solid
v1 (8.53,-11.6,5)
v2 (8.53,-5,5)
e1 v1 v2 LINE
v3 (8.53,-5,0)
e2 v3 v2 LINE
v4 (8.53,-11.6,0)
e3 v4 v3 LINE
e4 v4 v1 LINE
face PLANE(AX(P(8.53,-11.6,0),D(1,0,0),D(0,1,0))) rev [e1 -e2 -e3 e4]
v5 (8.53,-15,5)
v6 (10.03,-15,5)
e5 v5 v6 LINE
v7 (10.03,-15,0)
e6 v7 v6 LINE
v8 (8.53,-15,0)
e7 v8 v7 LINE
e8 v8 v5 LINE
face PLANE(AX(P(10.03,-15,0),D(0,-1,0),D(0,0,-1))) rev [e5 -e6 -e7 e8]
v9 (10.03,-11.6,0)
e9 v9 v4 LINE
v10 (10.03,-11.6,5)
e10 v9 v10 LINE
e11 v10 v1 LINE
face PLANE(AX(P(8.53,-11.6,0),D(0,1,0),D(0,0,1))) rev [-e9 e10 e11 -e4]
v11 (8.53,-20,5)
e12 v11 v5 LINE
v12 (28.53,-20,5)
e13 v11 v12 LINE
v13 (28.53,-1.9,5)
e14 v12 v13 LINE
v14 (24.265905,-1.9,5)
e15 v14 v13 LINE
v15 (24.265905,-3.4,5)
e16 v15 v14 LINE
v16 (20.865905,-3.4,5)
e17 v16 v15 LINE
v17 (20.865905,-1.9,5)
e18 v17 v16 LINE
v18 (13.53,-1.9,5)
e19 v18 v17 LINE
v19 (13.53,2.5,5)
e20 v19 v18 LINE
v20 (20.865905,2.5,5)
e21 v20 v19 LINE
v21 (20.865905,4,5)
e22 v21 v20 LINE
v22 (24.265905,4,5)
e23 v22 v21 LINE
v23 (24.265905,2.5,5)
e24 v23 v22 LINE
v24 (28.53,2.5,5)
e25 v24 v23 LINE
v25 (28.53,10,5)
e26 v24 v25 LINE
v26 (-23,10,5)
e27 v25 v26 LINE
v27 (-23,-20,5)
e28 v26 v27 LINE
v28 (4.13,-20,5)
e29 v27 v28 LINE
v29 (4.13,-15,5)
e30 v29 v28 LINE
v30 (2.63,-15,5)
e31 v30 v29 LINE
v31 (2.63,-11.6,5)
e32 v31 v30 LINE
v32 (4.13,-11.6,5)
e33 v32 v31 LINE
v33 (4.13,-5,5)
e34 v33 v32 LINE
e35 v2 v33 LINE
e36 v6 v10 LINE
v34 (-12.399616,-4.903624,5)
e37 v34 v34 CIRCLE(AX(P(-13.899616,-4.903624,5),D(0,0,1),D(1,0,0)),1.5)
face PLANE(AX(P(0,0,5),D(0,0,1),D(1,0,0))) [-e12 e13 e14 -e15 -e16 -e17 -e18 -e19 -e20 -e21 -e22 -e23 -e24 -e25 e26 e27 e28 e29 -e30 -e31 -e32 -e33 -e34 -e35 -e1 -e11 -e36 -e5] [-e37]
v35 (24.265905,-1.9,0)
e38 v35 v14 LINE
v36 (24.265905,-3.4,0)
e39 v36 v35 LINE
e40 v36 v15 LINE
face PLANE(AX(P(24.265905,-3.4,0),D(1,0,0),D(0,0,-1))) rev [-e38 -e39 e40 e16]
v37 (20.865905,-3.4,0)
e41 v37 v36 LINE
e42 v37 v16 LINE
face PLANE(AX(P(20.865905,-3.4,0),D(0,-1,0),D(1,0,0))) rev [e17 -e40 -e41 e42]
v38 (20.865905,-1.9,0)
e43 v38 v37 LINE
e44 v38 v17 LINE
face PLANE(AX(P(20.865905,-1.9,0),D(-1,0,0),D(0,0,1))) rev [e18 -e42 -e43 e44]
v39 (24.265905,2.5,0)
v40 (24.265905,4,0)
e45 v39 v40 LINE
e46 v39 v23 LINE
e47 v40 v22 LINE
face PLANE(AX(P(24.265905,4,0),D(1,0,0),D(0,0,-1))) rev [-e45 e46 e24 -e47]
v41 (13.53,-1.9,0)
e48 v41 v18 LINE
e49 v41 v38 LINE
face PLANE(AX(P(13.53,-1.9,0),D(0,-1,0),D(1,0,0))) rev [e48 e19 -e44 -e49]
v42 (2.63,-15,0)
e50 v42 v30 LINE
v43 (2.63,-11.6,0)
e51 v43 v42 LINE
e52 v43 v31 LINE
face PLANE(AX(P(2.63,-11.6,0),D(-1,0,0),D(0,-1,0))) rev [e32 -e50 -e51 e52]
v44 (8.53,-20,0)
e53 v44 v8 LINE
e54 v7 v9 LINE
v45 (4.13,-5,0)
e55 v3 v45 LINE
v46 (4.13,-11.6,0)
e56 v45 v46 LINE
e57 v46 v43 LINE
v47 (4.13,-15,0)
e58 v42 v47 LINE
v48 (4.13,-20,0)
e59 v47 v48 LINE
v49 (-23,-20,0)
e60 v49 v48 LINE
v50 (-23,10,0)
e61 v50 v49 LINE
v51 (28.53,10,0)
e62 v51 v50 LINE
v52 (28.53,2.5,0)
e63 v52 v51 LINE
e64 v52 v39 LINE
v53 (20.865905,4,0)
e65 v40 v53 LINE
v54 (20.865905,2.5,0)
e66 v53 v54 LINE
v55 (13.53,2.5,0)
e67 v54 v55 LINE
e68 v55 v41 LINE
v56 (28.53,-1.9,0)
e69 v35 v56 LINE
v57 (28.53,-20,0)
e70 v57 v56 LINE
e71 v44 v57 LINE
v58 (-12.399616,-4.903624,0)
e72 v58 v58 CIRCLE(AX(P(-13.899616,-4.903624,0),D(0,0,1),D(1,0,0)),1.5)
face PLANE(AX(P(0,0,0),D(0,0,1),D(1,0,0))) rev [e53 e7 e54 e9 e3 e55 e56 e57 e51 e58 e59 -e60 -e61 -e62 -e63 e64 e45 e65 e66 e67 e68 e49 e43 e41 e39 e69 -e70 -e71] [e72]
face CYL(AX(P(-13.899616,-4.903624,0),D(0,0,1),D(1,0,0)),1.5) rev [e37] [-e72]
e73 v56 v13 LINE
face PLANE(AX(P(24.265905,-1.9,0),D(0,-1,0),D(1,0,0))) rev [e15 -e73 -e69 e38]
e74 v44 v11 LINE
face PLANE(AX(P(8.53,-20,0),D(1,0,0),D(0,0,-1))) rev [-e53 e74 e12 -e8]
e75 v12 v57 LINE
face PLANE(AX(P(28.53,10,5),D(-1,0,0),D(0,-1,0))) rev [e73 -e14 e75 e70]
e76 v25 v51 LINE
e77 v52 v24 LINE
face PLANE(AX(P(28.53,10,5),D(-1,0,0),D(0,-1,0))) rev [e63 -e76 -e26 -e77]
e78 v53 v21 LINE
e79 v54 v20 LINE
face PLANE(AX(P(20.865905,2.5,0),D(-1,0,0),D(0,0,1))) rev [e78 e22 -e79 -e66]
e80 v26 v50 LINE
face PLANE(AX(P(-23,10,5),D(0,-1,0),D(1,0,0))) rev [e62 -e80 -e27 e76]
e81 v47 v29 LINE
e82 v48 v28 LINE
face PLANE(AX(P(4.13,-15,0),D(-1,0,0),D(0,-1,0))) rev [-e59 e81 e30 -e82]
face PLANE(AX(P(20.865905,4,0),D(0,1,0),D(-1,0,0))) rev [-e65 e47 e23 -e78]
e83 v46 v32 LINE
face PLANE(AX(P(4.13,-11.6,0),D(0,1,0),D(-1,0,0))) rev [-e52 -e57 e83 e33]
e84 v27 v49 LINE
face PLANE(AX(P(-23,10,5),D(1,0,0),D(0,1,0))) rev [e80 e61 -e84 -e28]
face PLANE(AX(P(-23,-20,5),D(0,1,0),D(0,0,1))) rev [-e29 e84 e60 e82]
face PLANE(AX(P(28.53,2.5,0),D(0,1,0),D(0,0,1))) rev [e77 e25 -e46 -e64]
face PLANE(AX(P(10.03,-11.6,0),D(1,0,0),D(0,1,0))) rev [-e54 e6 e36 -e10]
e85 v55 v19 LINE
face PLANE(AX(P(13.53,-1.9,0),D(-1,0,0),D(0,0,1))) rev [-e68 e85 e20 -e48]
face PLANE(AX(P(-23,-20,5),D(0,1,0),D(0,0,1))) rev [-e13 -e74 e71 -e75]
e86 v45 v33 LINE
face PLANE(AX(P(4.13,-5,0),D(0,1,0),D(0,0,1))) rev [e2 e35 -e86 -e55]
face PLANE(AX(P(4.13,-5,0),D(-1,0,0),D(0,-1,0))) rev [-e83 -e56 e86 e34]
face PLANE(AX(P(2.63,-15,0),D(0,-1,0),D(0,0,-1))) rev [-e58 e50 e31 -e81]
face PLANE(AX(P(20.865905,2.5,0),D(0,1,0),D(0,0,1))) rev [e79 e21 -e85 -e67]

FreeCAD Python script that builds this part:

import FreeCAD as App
import Part
import Sketcher
from FreeCAD import Vector
Q = App.Units.Quantity

doc = App.newDocument("Part")
body = doc.addObject("PartDesign::Body", "Body")

# Sketch on XY plane
sketch1 = body.newObject("Sketcher::SketchObject", "Sketch")
sketch1.AttachmentSupport = (doc.getObject("XY_Plane"), [""])
sketch1.MapMode = "FlatFace"
sketch1.addGeometry([
    Part.LineSegment(Vector(-23, 10, 0), Vector(-23, -20, 0)),
    Part.LineSegment(Vector(-23, -20, 0), Vector(28.53, -20, 0)),
    Part.LineSegment(Vector(28.53, -20, 0), Vector(28.53, 10, 0)),
    Part.LineSegment(Vector(28.53, 10, 0), Vector(-23, 10, 0)),
], False)
sketch1.addConstraint([
    Sketcher.Constraint("Coincident", 0, 2, 1, 1),
    Sketcher.Constraint("Coincident", 1, 2, 2, 1),
    Sketcher.Constraint("Coincident", 2, 2, 3, 1),
    Sketcher.Constraint("Coincident", 3, 2, 0, 1),
    Sketcher.Constraint("Vertical", 0),
    Sketcher.Constraint("Horizontal", 1),
    Sketcher.Constraint("Vertical", 2),
    Sketcher.Constraint("Horizontal", 3),
    Sketcher.Constraint("DistanceY", 0, 2, 0, 1, Q("30 mm")),
    Sketcher.Constraint("DistanceX", 0, 2, -1, 1, Q("23 mm")),
    Sketcher.Constraint("DistanceY", 0, 2, -1, 1, Q("20 mm")),
    Sketcher.Constraint("DistanceX", 1, 1, 1, 2, Q("51.53 mm")),
])
pad1 = body.newObject("PartDesign::Pad", "Pad")
pad1.Profile = sketch1
pad1.Length = 5

# Sketch on XY plane
sketch2 = body.newObject("Sketcher::SketchObject", "Sketch001")
sketch2.AttachmentSupport = (doc.getObject("XY_Plane"), [""])
sketch2.MapMode = "FlatFace"
sketch2.AttachmentOffset = App.Placement(Vector(0, 0, 5), App.Rotation())
sketch2.addGeometry([
    Part.LineSegment(Vector(13.53, -1.9, 0), Vector(20.865905, -1.9, 0)),  # 0
    Part.LineSegment(Vector(20.865905, -1.9, 0), Vector(20.865905, -3.4, 0)),  # 1
    Part.LineSegment(Vector(20.865905, -3.4, 0), Vector(24.265905, -3.4, 0)),  # 2
    Part.LineSegment(Vector(24.265905, -3.4, 0), Vector(24.265905, -1.9, 0)),  # 3
    Part.LineSegment(Vector(24.265905, -1.9, 0), Vector(28.53, -1.9, 0)),  # 4
    Part.LineSegment(Vector(28.53, -1.9, 0), Vector(28.53, 2.5, 0)),  # 5
    Part.LineSegment(Vector(28.53, 2.5, 0), Vector(24.265905, 2.5, 0)),  # 6
    Part.LineSegment(Vector(24.265905, 2.5, 0), Vector(24.265905, 4, 0)),  # 7
    Part.LineSegment(Vector(24.265905, 4, 0), Vector(20.865905, 4, 0)),  # 8
    Part.LineSegment(Vector(20.865905, 4, 0), Vector(20.865905, 2.5, 0)),  # 9
    Part.LineSegment(Vector(20.865905, 2.5, 0), Vector(13.53, 2.5, 0)),  # 10
    Part.LineSegment(Vector(13.53, 2.5, 0), Vector(13.53, -1.9, 0)),  # 11
    Part.LineSegment(Vector(4.13, -5, 0), Vector(4.13, -11.6, 0)),  # 12
    Part.LineSegment(Vector(4.13, -11.6, 0), Vector(2.63, -11.6, 0)),  # 13
    Part.LineSegment(Vector(2.63, -11.6, 0), Vector(2.63, -15, 0)),  # 14
    Part.LineSegment(Vector(2.63, -15, 0), Vector(4.13, -15, 0)),  # 15
    Part.LineSegment(Vector(4.13, -15, 0), Vector(4.13, -20, 0)),  # 16
    Part.LineSegment(Vector(4.13, -20, 0), Vector(8.53, -20, 0)),  # 17
    Part.LineSegment(Vector(8.53, -20, 0), Vector(8.53, -15, 0)),  # 18
    Part.LineSegment(Vector(8.53, -15, 0), Vector(10.03, -15, 0)),  # 19
    Part.LineSegment(Vector(10.03, -15, 0), Vector(10.03, -11.6, 0)),  # 20
    Part.LineSegment(Vector(10.03, -11.6, 0), Vector(8.53, -11.6, 0)),  # 21
    Part.LineSegment(Vector(8.53, -11.6, 0), Vector(8.53, -5, 0)),  # 22
    Part.LineSegment(Vector(8.53, -5, 0), Vector(4.13, -5, 0)),  # 23
], False)
sketch2.addConstraint([
    Sketcher.Constraint("Coincident", 0, 2, 1, 1),
    Sketcher.Constraint("Coincident", 1, 2, 2, 1),
    Sketcher.Constraint("Coincident", 2, 2, 3, 1),
    Sketcher.Constraint("Coincident", 3, 2, 4, 1),
    Sketcher.Constraint("Coincident", 4, 2, 5, 1),
    Sketcher.Constraint("Coincident", 5, 2, 6, 1),
    Sketcher.Constraint("Coincident", 6, 2, 7, 1),
    Sketcher.Constraint("Coincident", 7, 2, 8, 1),
    Sketcher.Constraint("Coincident", 8, 2, 9, 1),
    Sketcher.Constraint("Coincident", 9, 2, 10, 1),
    Sketcher.Constraint("Coincident", 10, 2, 11, 1),
    Sketcher.Constraint("Coincident", 11, 2, 0, 1),
    Sketcher.Constraint("Coincident", 12, 2, 13, 1),
    Sketcher.Constraint("Coincident", 13, 2, 14, 1),
    Sketcher.Constraint("Coincident", 14, 2, 15, 1),
    Sketcher.Constraint("Coincident", 15, 2, 16, 1),
    Sketcher.Constraint("Coincident", 16, 2, 17, 1),
    Sketcher.Constraint("Coincident", 17, 2, 18, 1),
    Sketcher.Constraint("Coincident", 18, 2, 19, 1),
    Sketcher.Constraint("Coincident", 19, 2, 20, 1),
    Sketcher.Constraint("Coincident", 20, 2, 21, 1),
    Sketcher.Constraint("Coincident", 21, 2, 22, 1),
    Sketcher.Constraint("Coincident", 22, 2, 23, 1),
    Sketcher.Constraint("Coincident", 23, 2, 12, 1),
    Sketcher.Constraint("Horizontal", 0),
    Sketcher.Constraint("Vertical", 1),
    Sketcher.Constraint("Horizontal", 2),
    Sketcher.Constraint("Vertical", 3),
    Sketcher.Constraint("Horizontal", 4),
    Sketcher.Constraint("Vertical", 5),
    Sketcher.Constraint("Horizontal", 6),
    Sketcher.Constraint("Vertical", 7),
    Sketcher.Constraint("Horizontal", 8),
    Sketcher.Constraint("Vertical", 9),
    Sketcher.Constraint("Horizontal", 10),
    Sketcher.Constraint("Vertical", 11),
    Sketcher.Constraint("Vertical", 12),
    Sketcher.Constraint("Horizontal", 13),
    Sketcher.Constraint("Vertical", 14),
    Sketcher.Constraint("Horizontal", 15),
    Sketcher.Constraint("Vertical", 16),
    Sketcher.Constraint("Horizontal", 17),
    Sketcher.Constraint("Vertical", 18),
    Sketcher.Constraint("Horizontal", 19),
    Sketcher.Constraint("Vertical", 20),
    Sketcher.Constraint("Horizontal", 21),
    Sketcher.Constraint("Vertical", 22),
    Sketcher.Constraint("Horizontal", 23),
    Sketcher.Constraint("Horizontal", 0, 2, 3, 2),
    Sketcher.Constraint("Horizontal", 6, 2, 9, 2),
    Sketcher.Constraint("Horizontal", 15, 2, 18, 2),
    Sketcher.Constraint("Horizontal", 13, 2, 20, 2),
    Sketcher.Constraint("Vertical", 3, 2, 6, 2),
    Sketcher.Constraint("Vertical", 1, 2, 8, 2),
    Sketcher.Constraint("Vertical", 12, 2, 15, 2),
    Sketcher.Constraint("Vertical", 18, 2, 21, 2),
    Sketcher.Constraint("Equal", 15, 19),
    Sketcher.Constraint("Equal", 21, 1),
    Sketcher.Constraint("Equal", 23, 5),
    Sketcher.Constraint("Equal", 3, 7),
    Sketcher.Constraint("Equal", 8, 14),
    Sketcher.Constraint("DistanceY", 16, 2, 16, 1, Q("5 mm")),
    Sketcher.Constraint("DistanceX", 2, 1, 2, 2, Q("3.4 mm")),
    Sketcher.Constraint("DistanceX", 13, 2, 13, 1, Q("1.5 mm")),
    Sketcher.Constraint("DistanceX", 17, 1, 17, 2, Q("4.4 mm")),
    Sketcher.Constraint("DistanceY", 12, 2, 12, 1, Q("6.6 mm")),
    Sketcher.Constraint("DistanceY", -1, 1, 7, 2, Q("4 mm")),
    Sketcher.Constraint("DistanceY", 14, 2, -1, 1, Q("15 mm")),
    Sketcher.Constraint("DistanceX", 22, 2, 11, 2, Q("5 mm")),
    Sketcher.Constraint("DistanceX", -1, 1, 4, 2, Q("28.53 mm")),
    Sketcher.Constraint("DistanceX", -1, 1, 10, 2, Q("13.53 mm")),
    Sketcher.Constraint("DistanceX", 0, 1, 0, 2, Q("7.335905 mm")),
])
pocket1 = body.newObject("PartDesign::Pocket", "Pocket")
pocket1.Profile = sketch2
pocket1.Length = 5

# Sketch on XY plane
sketch3 = body.newObject("Sketcher::SketchObject", "Sketch002")
sketch3.AttachmentSupport = (doc.getObject("XY_Plane"), [""])
sketch3.MapMode = "FlatFace"
sketch3.AttachmentOffset = App.Placement(Vector(0, 0, 5), App.Rotation())
sketch3.addGeometry(Part.Circle(Vector(-13.899616, -4.903624, 0), Vector(0, 0, 1), 1.5), False)
sketch3.addConstraint([
    Sketcher.Constraint("Diameter", 0, Q("3 mm")),
    Sketcher.Constraint("DistanceX", 0, 3, -1, 1, Q("13.899616 mm")),
    Sketcher.Constraint("DistanceY", 0, 3, -1, 1, Q("4.903624 mm")),
])
pocket2 = body.newObject("PartDesign::Pocket", "Pocket001")
pocket2.Profile = sketch3
pocket2.Length = 5

doc.recompute()
